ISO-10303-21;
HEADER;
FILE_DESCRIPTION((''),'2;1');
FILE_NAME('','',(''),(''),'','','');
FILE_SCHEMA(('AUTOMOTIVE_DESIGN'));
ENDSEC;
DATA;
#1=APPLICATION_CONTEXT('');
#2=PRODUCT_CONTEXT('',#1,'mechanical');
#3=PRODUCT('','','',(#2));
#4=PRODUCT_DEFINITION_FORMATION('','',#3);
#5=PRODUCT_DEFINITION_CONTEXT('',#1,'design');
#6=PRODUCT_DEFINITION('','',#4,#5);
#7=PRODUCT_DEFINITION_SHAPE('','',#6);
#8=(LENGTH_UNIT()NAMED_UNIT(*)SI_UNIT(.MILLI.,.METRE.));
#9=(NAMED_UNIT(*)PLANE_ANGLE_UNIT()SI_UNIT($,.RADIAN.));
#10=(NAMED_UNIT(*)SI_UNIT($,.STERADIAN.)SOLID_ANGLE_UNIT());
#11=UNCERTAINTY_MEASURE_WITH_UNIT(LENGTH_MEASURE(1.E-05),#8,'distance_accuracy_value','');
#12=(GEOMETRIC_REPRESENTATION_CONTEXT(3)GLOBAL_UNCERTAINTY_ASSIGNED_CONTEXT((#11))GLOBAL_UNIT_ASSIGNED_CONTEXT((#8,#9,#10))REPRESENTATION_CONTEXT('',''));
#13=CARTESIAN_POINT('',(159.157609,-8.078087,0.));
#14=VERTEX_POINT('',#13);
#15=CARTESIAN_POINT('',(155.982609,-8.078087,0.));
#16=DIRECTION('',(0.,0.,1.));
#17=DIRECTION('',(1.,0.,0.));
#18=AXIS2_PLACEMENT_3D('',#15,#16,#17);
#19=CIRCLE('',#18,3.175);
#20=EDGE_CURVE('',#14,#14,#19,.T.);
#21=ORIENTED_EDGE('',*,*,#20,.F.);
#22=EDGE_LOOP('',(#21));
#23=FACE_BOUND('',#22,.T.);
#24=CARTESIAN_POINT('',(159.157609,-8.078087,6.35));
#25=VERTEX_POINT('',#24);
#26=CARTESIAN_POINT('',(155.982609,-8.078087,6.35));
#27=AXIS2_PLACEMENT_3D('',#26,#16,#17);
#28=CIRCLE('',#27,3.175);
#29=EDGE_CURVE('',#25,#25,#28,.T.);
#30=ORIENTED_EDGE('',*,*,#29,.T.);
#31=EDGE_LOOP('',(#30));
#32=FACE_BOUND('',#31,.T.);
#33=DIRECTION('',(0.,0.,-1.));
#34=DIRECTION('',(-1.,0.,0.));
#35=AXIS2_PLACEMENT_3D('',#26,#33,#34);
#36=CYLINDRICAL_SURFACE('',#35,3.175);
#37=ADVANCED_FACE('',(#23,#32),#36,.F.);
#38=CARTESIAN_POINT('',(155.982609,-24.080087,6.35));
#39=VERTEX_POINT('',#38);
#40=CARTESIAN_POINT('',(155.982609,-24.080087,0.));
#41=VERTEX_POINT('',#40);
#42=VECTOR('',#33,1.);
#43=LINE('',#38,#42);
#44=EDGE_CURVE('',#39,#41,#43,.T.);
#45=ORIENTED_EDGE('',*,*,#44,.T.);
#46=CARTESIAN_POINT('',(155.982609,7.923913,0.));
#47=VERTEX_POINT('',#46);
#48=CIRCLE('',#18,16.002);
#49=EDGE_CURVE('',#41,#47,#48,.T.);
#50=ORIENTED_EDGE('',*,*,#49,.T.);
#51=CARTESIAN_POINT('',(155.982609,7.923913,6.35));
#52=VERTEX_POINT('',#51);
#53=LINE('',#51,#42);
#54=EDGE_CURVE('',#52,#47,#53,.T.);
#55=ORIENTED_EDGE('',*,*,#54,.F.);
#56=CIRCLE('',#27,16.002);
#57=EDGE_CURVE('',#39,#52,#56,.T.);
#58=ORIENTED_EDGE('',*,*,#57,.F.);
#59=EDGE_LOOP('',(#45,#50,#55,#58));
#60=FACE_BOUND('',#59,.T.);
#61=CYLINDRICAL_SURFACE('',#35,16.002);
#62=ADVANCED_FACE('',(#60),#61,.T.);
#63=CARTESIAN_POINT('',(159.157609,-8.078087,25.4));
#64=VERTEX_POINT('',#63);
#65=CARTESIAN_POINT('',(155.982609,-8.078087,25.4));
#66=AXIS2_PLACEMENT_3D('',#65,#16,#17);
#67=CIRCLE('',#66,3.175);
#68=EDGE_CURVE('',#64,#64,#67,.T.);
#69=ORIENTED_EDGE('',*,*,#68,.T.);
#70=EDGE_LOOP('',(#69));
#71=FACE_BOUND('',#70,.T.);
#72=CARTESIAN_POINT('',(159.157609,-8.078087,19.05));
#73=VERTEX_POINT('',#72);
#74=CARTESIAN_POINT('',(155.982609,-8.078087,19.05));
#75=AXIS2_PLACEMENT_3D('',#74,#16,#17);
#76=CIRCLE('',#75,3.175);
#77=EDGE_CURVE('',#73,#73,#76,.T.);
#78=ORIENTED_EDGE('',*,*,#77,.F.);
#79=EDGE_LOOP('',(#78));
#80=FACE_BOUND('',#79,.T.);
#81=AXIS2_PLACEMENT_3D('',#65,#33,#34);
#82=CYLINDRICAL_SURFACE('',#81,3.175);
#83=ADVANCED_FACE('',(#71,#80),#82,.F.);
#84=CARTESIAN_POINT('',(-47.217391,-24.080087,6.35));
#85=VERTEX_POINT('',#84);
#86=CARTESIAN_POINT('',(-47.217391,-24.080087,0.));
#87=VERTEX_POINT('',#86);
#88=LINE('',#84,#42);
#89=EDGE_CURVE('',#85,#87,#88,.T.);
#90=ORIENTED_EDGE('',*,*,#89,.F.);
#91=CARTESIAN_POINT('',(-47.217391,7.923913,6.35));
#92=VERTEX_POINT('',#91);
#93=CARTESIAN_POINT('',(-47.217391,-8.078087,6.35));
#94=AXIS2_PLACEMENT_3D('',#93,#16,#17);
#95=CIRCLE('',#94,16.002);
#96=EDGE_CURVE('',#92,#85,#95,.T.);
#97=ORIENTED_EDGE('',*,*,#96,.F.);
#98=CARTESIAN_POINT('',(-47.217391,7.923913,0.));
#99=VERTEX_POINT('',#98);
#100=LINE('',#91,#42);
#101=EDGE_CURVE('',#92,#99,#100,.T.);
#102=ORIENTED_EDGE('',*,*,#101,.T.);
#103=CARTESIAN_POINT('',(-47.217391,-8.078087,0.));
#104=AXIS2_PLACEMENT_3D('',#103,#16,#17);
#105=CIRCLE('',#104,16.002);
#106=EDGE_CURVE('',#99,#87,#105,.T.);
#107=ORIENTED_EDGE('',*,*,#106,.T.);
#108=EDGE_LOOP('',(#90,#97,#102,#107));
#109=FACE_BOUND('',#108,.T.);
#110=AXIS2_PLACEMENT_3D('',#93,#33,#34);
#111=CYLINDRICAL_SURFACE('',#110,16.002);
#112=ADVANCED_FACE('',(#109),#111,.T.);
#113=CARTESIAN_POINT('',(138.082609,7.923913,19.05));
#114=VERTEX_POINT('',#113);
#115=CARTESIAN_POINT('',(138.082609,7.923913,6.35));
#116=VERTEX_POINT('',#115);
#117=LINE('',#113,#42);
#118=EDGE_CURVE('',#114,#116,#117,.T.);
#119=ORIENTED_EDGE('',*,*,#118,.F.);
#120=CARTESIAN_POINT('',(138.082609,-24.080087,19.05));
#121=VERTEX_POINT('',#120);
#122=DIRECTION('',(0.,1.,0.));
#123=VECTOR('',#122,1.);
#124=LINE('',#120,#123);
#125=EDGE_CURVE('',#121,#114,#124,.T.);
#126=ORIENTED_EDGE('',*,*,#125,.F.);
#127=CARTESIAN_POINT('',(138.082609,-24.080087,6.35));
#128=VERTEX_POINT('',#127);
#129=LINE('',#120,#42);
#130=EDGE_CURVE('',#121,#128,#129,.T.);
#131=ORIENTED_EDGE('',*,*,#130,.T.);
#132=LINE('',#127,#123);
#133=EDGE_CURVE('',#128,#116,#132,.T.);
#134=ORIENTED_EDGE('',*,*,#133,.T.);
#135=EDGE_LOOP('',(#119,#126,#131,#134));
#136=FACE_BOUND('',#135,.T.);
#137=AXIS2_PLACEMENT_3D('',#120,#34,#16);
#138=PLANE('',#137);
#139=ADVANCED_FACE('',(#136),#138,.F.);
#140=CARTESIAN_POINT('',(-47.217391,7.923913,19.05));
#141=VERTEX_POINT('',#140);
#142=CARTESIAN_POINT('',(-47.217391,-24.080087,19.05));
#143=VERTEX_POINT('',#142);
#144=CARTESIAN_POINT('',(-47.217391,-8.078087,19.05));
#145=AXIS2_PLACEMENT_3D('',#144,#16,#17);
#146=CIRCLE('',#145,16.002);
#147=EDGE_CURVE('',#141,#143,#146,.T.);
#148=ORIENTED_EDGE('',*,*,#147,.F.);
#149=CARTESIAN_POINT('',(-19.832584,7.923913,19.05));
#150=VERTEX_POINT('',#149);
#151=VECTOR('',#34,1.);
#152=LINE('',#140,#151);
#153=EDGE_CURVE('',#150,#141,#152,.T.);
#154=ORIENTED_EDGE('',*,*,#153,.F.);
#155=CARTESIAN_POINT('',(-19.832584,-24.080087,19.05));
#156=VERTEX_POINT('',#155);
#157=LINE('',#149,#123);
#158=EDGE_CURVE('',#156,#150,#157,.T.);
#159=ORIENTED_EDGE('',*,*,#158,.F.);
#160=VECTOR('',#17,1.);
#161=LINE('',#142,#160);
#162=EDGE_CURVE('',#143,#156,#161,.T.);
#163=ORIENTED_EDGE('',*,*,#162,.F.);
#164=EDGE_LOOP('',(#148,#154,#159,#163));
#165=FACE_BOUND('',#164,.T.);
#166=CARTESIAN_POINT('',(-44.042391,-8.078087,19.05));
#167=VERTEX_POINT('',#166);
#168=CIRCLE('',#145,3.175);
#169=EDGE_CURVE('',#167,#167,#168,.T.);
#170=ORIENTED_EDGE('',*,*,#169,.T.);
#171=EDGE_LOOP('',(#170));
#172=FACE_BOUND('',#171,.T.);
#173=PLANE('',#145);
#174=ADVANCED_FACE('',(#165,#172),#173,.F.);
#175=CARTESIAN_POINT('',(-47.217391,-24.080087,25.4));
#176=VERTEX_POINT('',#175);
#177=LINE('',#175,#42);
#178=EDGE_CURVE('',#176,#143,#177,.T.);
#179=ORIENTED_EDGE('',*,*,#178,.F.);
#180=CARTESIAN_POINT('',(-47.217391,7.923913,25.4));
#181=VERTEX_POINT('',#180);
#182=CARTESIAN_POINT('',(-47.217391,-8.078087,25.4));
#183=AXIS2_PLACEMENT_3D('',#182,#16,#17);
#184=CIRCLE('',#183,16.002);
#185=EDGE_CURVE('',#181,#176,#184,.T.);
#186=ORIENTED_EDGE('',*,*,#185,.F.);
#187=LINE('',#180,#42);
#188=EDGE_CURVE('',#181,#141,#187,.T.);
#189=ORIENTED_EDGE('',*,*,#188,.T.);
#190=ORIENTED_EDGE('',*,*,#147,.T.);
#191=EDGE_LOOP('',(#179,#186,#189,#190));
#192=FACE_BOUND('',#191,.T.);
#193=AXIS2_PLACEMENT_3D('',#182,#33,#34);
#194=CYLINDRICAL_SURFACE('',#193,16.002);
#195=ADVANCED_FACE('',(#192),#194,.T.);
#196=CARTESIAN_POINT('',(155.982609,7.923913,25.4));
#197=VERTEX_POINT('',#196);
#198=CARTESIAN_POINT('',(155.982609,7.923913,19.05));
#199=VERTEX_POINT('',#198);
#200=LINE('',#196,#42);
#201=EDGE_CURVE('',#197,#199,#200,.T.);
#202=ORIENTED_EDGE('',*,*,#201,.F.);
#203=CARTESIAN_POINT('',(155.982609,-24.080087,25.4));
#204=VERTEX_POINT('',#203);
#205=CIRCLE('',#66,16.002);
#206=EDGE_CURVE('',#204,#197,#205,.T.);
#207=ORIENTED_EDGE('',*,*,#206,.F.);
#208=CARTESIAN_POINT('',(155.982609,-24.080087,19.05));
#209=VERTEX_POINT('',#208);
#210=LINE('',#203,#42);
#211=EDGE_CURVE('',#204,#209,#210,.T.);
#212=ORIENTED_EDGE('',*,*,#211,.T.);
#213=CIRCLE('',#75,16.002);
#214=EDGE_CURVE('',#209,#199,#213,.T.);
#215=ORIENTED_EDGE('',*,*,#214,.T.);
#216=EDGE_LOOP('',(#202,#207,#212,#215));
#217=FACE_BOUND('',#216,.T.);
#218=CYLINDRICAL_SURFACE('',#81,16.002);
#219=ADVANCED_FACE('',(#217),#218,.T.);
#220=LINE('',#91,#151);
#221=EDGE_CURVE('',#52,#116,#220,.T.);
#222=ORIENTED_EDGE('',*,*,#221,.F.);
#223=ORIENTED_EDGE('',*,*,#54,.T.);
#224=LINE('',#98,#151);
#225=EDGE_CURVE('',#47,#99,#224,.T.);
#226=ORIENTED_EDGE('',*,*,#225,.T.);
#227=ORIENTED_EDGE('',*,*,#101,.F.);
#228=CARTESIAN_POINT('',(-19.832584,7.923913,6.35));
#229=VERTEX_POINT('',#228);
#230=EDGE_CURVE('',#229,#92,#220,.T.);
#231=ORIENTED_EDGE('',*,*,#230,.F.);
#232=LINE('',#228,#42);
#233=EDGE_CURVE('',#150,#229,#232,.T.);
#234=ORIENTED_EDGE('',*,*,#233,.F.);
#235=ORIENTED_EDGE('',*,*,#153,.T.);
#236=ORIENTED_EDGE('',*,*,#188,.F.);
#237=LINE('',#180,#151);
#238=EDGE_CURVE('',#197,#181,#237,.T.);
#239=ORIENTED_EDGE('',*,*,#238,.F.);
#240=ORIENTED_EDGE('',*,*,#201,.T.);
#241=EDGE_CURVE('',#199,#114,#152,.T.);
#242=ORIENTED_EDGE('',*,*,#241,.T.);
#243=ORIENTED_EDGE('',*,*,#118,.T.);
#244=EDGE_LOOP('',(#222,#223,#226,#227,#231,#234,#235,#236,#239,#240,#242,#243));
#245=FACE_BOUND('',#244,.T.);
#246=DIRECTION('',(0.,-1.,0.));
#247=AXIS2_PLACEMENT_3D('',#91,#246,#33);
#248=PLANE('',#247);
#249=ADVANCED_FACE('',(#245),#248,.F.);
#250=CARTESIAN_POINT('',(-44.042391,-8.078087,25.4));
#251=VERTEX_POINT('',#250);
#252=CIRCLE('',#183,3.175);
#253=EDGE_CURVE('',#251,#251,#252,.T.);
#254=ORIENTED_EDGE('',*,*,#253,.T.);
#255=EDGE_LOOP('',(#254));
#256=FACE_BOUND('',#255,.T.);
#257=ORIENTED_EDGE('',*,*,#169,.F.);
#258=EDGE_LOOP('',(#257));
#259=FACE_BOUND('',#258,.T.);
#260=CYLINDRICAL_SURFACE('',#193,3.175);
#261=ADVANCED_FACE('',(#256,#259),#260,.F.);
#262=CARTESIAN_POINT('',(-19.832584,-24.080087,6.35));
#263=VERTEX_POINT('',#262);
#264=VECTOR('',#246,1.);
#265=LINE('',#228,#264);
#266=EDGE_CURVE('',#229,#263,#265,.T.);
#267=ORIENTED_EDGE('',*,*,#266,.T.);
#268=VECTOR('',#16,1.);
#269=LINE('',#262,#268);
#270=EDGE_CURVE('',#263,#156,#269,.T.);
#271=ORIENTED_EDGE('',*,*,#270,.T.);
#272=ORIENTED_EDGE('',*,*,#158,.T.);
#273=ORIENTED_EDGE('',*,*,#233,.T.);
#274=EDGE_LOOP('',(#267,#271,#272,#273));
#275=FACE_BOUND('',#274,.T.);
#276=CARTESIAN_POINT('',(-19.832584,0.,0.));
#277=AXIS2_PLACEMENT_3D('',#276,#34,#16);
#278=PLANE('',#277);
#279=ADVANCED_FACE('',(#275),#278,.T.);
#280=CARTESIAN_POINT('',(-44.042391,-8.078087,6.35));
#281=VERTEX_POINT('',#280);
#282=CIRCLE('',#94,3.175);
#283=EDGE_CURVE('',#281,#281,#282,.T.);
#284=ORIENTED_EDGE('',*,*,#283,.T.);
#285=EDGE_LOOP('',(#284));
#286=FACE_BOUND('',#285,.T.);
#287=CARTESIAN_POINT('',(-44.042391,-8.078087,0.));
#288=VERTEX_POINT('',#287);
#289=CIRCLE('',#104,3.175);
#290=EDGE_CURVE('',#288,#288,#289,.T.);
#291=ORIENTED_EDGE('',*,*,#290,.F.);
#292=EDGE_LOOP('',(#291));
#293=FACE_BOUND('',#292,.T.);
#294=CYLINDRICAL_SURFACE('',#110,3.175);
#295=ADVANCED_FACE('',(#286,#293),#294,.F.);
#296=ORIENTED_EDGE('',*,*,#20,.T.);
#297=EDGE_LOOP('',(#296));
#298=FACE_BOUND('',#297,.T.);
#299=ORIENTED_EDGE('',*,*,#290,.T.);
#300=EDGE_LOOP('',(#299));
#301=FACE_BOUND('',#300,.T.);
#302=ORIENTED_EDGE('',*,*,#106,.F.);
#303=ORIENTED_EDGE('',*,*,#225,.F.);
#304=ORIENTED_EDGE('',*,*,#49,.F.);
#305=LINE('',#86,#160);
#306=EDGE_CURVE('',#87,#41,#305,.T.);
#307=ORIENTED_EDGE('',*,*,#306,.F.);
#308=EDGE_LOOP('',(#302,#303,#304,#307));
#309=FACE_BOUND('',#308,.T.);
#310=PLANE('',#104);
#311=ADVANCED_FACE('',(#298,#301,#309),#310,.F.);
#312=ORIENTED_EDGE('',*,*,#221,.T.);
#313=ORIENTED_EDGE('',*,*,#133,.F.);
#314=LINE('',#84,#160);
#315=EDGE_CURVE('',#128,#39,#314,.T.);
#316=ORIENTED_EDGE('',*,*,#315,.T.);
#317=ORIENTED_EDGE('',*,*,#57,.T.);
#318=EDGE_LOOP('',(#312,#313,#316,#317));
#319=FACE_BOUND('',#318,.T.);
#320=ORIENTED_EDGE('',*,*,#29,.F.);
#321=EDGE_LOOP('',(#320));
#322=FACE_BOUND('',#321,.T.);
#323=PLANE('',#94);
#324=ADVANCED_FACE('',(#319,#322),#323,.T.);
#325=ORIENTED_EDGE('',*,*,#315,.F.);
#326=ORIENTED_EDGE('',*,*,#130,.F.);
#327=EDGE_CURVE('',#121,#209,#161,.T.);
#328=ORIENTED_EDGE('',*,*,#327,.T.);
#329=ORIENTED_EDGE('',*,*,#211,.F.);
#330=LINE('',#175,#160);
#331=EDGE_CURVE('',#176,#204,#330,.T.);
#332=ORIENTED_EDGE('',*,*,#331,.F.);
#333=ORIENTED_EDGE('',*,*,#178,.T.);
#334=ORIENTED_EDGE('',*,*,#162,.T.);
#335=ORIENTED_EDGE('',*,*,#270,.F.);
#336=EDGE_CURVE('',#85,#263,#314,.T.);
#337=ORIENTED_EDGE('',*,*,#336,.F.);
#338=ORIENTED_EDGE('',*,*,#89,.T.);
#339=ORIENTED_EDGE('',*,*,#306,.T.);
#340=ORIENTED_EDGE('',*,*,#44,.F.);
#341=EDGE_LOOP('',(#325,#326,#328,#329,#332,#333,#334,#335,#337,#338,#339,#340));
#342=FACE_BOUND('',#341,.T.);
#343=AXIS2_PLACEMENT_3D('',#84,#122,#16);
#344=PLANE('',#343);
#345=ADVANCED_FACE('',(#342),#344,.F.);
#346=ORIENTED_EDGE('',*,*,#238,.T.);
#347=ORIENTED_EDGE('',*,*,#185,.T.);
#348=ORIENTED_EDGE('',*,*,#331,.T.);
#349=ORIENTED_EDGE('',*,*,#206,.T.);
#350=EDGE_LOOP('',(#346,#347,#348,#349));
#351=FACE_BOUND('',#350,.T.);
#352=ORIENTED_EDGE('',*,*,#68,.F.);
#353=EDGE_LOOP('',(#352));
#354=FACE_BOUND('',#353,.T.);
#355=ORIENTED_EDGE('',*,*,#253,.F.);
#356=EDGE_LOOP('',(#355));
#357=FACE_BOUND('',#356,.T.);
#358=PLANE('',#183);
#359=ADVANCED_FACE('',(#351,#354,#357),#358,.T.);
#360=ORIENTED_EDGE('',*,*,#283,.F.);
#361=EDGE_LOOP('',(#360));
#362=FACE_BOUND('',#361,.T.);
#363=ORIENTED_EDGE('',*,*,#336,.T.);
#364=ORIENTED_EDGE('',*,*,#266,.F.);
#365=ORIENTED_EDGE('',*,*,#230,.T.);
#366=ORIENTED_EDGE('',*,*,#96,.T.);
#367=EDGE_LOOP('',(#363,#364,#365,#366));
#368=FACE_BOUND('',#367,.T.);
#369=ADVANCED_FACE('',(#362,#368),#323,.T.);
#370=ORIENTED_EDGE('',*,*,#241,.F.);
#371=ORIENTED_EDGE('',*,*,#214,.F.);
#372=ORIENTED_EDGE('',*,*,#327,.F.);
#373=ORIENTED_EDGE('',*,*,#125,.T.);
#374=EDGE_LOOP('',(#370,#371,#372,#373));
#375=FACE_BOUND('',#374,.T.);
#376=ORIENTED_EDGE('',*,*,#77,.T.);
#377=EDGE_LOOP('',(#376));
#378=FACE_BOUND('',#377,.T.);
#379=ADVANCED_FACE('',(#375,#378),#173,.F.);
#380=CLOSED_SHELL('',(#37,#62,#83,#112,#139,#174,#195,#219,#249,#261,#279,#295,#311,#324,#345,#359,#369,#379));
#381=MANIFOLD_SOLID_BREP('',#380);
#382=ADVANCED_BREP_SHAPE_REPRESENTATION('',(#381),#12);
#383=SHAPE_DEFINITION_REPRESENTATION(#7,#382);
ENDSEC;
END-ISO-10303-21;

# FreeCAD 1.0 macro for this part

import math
import FreeCAD as App
import Part
import Sketcher
Q = App.Units.Quantity


def add_polygon(sketch, points):
    """Adds a closed chain of lines whose ends are joined by coincident constraints."""
    first, n = sketch.GeometryCount, len(points)
    for a, b in zip(points, points[1:] + points[:1]):
        sketch.addGeometry(Part.LineSegment(App.Vector(*a, 0), App.Vector(*b, 0)), False)
    for i in range(n):
        sketch.addConstraint(Sketcher.Constraint("Coincident", first + i, 2, first + (i + 1) % n, 1))

doc = App.newDocument("Part")
params = doc.addObject("Spreadsheet::Sheet", "Params")
for row, (alias, value) in enumerate([
    ("sketch1_diameter", "0.25 in"),
    ("sketch1_width", "8 in"),
    ("sketch1_radius", "0.63 in"),
    ("pad1_length", "0.25 in"),
    ("sketch2_height", "1.26 in"),
    ("pad2_length", "0.5 in"),
    ("sketch3_diameter", "0.25 in"),
    ("sketch3_width", "8 in"),
    ("sketch3_radius", "0.63 in"),
    ("pad3_length", "0.25 in"),
    ("sketch4_height", "0.5 in"),
    ("sketch4_width", "1.26 in"),
    ("pocket1_length", "0.4 in"),
], start=1):
    params.set(f"A{row}", alias)
    params.set(f"B{row}", "=" + value)
    params.setAlias(f"B{row}", alias)

body = doc.addObject("PartDesign::Body", "Body")

# Sketch on XY plane
sketch1 = doc.addObject("Sketcher::SketchObject", "Sketch")
body.addObject(sketch1)
sketch1.AttachmentSupport = (doc.XY_Plane, [""])
sketch1.MapMode = "FlatFace"
sketch1.addGeometry([
    Part.LineSegment(App.Vector(156, 7.9, 0), App.Vector(-47.2, 7.9, 0)),  # 0
    Part.ArcOfCircle(Part.Circle(App.Vector(-47.2, -8.1, 0), App.Vector(0, 0, 1), 16), math.radians(90), math.radians(270)),  # 1
    Part.LineSegment(App.Vector(-47.2, -24.1, 0), App.Vector(156, -24.1, 0)),  # 2
    Part.ArcOfCircle(Part.Circle(App.Vector(156, -8.1, 0), App.Vector(0, 0, 1), 16), math.radians(-90), math.radians(90)),  # 3
    Part.Circle(App.Vector(156, -8.1, 0), App.Vector(0, 0, 1), 3.2),  # 4
    Part.Circle(App.Vector(-47.2, -8.1, 0), App.Vector(0, 0, 1), 3.2),  # 5
], False)
sketch1.addConstraint([
    Sketcher.Constraint("Tangent", 0, 2, 1, 1),
    Sketcher.Constraint("Tangent", 1, 2, 2, 1),
    Sketcher.Constraint("Tangent", 2, 2, 3, 1),
    Sketcher.Constraint("Tangent", 3, 2, 0, 1),
    Sketcher.Constraint("Horizontal", 0),
    Sketcher.Constraint("Horizontal", 2),
    Sketcher.Constraint("Coincident", 4, 3, 3, 3),
    Sketcher.Constraint("Coincident", 5, 3, 1, 3),
    Sketcher.Constraint("Equal", 4, 5),
    Sketcher.Constraint("Diameter", 4, Q("0.25 in")),
    Sketcher.Constraint("DistanceX", 0, 2, 0, 1, Q("8 in")),
    Sketcher.Constraint("Radius", 1, Q("0.63 in")),
    Sketcher.Constraint("DistanceX", 1, 3, -1, 1, Q("47.217391 mm")),
    Sketcher.Constraint("DistanceY", 1, 3, -1, 1, Q("8.078087 mm")),
])
sketch1.setExpression("Constraints[9]", "Params.sketch1_diameter")
sketch1.setExpression("Constraints[10]", "Params.sketch1_width")
sketch1.setExpression("Constraints[11]", "Params.sketch1_radius")
pad1 = doc.addObject("PartDesign::Pad", "Pad")
body.addObject(pad1)
pad1.Profile = sketch1
pad1.setExpression("Length", "Params.pad1_length")

# Sketch on XY plane
sketch2 = doc.addObject("Sketcher::SketchObject", "Sketch001")
body.addObject(sketch2)
sketch2.AttachmentSupport = (doc.XY_Plane, [""])
sketch2.MapMode = "FlatFace"
sketch2.AttachmentOffset = App.Placement(App.Vector(0, 0, 0.25 * 25.4), App.Rotation())
add_polygon(sketch2, [(-30, 8), (-30, -24), (138, -24), (138, 8)])  # lines 0-3
sketch2.addConstraint([
    Sketcher.Constraint("Vertical", 0),
    Sketcher.Constraint("Horizontal", 1),
    Sketcher.Constraint("Vertical", 2),
    Sketcher.Constraint("Horizontal", 3),
    Sketcher.Constraint("DistanceY", 0, 2, 0, 1, Q("1.26 in")),
    Sketcher.Constraint("DistanceX", 1, 1, 1, 2, Q("168.075192 mm")),
    Sketcher.Constraint("DistanceX", -1, 1, 1, 2, Q("138.082609 mm")),
    Sketcher.Constraint("DistanceY", 0, 2, -1, 1, Q("24.080087 mm")),
])
sketch2.setExpression("Constraints[8]", "Params.sketch2_height")
pad2 = doc.addObject("PartDesign::Pad", "Pad001")
body.addObject(pad2)
pad2.Profile = sketch2
pad2.setExpression("Length", "Params.pad2_length")

# Sketch on XY plane
sketch3 = doc.addObject("Sketcher::SketchObject", "Sketch002")
body.addObject(sketch3)
sketch3.AttachmentSupport = (doc.XY_Plane, [""])
sketch3.MapMode = "FlatFace"
sketch3.AttachmentOffset = App.Placement(App.Vector(0, 0, 0.75 * 25.4), App.Rotation())
sketch3.addGeometry([
    Part.LineSegment(App.Vector(156, 7.9, 0), App.Vector(-47.2, 7.9, 0)),  # 0
    Part.ArcOfCircle(Part.Circle(App.Vector(-47.2, -8.1, 0), App.Vector(0, 0, 1), 16), math.radians(90), math.radians(270)),  # 1
    Part.LineSegment(App.Vector(-47.2, -24.1, 0), App.Vector(156, -24.1, 0)),  # 2
    Part.ArcOfCircle(Part.Circle(App.Vector(156, -8.1, 0), App.Vector(0, 0, 1), 16), math.radians(-90), math.radians(90)),  # 3
    Part.Circle(App.Vector(156, -8.1, 0), App.Vector(0, 0, 1), 3.2),  # 4
    Part.Circle(App.Vector(-47.2, -8.1, 0), App.Vector(0, 0, 1), 3.2),  # 5
], False)
sketch3.addConstraint([
    Sketcher.Constraint("Tangent", 0, 2, 1, 1),
    Sketcher.Constraint("Tangent", 1, 2, 2, 1),
    Sketcher.Constraint("Tangent", 2, 2, 3, 1),
    Sketcher.Constraint("Tangent", 3, 2, 0, 1),
    Sketcher.Constraint("Horizontal", 0),
    Sketcher.Constraint("Horizontal", 2),
    Sketcher.Constraint("Coincident", 4, 3, 3, 3),
    Sketcher.Constraint("Coincident", 5, 3, 1, 3),
    Sketcher.Constraint("Equal", 4, 5),
    Sketcher.Constraint("Diameter", 4, Q("0.25 in")),
    Sketcher.Constraint("DistanceX", 0, 2, 0, 1, Q("8 in")),
    Sketcher.Constraint("Radius", 1, Q("0.63 in")),
    Sketcher.Constraint("DistanceX", 1, 3, -1, 1, Q("47.217391 mm")),
    Sketcher.Constraint("DistanceY", 1, 3, -1, 1, Q("8.078087 mm")),
])
sketch3.setExpression("Constraints[9]", "Params.sketch3_diameter")
sketch3.setExpression("Constraints[10]", "Params.sketch3_width")
sketch3.setExpression("Constraints[11]", "Params.sketch3_radius")
pad3 = doc.addObject("PartDesign::Pad", "Pad002")
body.addObject(pad3)
pad3.Profile = sketch3
pad3.setExpression("Length", "Params.pad3_length")

# Sketch on YZ plane
sketch4 = doc.addObject("Sketcher::SketchObject", "Sketch003")
body.addObject(sketch4)
sketch4.AttachmentSupport = (doc.YZ_Plane, [""])
sketch4.MapMode = "FlatFace"
sketch4.AttachmentOffset = App.Placement(App.Vector(0, 0, -29.992584), App.Rotation())
add_polygon(sketch4, [(8, 6), (-24, 6), (-24, 19), (8, 19)])  # lines 0-3
sketch4.addConstraint([
    Sketcher.Constraint("Horizontal", 0),
    Sketcher.Constraint("Vertical", 1),
    Sketcher.Constraint("Horizontal", 2),
    Sketcher.Constraint("Vertical", 3),
    Sketcher.Constraint("DistanceY", 1, 1, 1, 2, Q("0.5 in")),
    Sketcher.Constraint("DistanceX", 0, 2, 0, 1, Q("1.26 in")),
    Sketcher.Constraint("DistanceY", -1, 1, 0, 2, Q("0.25 in")),
    Sketcher.Constraint("DistanceX", 0, 2, -1, 1, Q("24.080087 mm")),
])
sketch4.setExpression("Constraints[8]", "Params.sketch4_height")
sketch4.setExpression("Constraints[9]", "Params.sketch4_width")
pocket1 = doc.addObject("PartDesign::Pocket", "Pocket")
body.addObject(pocket1)
pocket1.Profile = sketch4
pocket1.setExpression("Length", "Params.pocket1_length")
pocket1.Reversed = True

doc.recompute()
